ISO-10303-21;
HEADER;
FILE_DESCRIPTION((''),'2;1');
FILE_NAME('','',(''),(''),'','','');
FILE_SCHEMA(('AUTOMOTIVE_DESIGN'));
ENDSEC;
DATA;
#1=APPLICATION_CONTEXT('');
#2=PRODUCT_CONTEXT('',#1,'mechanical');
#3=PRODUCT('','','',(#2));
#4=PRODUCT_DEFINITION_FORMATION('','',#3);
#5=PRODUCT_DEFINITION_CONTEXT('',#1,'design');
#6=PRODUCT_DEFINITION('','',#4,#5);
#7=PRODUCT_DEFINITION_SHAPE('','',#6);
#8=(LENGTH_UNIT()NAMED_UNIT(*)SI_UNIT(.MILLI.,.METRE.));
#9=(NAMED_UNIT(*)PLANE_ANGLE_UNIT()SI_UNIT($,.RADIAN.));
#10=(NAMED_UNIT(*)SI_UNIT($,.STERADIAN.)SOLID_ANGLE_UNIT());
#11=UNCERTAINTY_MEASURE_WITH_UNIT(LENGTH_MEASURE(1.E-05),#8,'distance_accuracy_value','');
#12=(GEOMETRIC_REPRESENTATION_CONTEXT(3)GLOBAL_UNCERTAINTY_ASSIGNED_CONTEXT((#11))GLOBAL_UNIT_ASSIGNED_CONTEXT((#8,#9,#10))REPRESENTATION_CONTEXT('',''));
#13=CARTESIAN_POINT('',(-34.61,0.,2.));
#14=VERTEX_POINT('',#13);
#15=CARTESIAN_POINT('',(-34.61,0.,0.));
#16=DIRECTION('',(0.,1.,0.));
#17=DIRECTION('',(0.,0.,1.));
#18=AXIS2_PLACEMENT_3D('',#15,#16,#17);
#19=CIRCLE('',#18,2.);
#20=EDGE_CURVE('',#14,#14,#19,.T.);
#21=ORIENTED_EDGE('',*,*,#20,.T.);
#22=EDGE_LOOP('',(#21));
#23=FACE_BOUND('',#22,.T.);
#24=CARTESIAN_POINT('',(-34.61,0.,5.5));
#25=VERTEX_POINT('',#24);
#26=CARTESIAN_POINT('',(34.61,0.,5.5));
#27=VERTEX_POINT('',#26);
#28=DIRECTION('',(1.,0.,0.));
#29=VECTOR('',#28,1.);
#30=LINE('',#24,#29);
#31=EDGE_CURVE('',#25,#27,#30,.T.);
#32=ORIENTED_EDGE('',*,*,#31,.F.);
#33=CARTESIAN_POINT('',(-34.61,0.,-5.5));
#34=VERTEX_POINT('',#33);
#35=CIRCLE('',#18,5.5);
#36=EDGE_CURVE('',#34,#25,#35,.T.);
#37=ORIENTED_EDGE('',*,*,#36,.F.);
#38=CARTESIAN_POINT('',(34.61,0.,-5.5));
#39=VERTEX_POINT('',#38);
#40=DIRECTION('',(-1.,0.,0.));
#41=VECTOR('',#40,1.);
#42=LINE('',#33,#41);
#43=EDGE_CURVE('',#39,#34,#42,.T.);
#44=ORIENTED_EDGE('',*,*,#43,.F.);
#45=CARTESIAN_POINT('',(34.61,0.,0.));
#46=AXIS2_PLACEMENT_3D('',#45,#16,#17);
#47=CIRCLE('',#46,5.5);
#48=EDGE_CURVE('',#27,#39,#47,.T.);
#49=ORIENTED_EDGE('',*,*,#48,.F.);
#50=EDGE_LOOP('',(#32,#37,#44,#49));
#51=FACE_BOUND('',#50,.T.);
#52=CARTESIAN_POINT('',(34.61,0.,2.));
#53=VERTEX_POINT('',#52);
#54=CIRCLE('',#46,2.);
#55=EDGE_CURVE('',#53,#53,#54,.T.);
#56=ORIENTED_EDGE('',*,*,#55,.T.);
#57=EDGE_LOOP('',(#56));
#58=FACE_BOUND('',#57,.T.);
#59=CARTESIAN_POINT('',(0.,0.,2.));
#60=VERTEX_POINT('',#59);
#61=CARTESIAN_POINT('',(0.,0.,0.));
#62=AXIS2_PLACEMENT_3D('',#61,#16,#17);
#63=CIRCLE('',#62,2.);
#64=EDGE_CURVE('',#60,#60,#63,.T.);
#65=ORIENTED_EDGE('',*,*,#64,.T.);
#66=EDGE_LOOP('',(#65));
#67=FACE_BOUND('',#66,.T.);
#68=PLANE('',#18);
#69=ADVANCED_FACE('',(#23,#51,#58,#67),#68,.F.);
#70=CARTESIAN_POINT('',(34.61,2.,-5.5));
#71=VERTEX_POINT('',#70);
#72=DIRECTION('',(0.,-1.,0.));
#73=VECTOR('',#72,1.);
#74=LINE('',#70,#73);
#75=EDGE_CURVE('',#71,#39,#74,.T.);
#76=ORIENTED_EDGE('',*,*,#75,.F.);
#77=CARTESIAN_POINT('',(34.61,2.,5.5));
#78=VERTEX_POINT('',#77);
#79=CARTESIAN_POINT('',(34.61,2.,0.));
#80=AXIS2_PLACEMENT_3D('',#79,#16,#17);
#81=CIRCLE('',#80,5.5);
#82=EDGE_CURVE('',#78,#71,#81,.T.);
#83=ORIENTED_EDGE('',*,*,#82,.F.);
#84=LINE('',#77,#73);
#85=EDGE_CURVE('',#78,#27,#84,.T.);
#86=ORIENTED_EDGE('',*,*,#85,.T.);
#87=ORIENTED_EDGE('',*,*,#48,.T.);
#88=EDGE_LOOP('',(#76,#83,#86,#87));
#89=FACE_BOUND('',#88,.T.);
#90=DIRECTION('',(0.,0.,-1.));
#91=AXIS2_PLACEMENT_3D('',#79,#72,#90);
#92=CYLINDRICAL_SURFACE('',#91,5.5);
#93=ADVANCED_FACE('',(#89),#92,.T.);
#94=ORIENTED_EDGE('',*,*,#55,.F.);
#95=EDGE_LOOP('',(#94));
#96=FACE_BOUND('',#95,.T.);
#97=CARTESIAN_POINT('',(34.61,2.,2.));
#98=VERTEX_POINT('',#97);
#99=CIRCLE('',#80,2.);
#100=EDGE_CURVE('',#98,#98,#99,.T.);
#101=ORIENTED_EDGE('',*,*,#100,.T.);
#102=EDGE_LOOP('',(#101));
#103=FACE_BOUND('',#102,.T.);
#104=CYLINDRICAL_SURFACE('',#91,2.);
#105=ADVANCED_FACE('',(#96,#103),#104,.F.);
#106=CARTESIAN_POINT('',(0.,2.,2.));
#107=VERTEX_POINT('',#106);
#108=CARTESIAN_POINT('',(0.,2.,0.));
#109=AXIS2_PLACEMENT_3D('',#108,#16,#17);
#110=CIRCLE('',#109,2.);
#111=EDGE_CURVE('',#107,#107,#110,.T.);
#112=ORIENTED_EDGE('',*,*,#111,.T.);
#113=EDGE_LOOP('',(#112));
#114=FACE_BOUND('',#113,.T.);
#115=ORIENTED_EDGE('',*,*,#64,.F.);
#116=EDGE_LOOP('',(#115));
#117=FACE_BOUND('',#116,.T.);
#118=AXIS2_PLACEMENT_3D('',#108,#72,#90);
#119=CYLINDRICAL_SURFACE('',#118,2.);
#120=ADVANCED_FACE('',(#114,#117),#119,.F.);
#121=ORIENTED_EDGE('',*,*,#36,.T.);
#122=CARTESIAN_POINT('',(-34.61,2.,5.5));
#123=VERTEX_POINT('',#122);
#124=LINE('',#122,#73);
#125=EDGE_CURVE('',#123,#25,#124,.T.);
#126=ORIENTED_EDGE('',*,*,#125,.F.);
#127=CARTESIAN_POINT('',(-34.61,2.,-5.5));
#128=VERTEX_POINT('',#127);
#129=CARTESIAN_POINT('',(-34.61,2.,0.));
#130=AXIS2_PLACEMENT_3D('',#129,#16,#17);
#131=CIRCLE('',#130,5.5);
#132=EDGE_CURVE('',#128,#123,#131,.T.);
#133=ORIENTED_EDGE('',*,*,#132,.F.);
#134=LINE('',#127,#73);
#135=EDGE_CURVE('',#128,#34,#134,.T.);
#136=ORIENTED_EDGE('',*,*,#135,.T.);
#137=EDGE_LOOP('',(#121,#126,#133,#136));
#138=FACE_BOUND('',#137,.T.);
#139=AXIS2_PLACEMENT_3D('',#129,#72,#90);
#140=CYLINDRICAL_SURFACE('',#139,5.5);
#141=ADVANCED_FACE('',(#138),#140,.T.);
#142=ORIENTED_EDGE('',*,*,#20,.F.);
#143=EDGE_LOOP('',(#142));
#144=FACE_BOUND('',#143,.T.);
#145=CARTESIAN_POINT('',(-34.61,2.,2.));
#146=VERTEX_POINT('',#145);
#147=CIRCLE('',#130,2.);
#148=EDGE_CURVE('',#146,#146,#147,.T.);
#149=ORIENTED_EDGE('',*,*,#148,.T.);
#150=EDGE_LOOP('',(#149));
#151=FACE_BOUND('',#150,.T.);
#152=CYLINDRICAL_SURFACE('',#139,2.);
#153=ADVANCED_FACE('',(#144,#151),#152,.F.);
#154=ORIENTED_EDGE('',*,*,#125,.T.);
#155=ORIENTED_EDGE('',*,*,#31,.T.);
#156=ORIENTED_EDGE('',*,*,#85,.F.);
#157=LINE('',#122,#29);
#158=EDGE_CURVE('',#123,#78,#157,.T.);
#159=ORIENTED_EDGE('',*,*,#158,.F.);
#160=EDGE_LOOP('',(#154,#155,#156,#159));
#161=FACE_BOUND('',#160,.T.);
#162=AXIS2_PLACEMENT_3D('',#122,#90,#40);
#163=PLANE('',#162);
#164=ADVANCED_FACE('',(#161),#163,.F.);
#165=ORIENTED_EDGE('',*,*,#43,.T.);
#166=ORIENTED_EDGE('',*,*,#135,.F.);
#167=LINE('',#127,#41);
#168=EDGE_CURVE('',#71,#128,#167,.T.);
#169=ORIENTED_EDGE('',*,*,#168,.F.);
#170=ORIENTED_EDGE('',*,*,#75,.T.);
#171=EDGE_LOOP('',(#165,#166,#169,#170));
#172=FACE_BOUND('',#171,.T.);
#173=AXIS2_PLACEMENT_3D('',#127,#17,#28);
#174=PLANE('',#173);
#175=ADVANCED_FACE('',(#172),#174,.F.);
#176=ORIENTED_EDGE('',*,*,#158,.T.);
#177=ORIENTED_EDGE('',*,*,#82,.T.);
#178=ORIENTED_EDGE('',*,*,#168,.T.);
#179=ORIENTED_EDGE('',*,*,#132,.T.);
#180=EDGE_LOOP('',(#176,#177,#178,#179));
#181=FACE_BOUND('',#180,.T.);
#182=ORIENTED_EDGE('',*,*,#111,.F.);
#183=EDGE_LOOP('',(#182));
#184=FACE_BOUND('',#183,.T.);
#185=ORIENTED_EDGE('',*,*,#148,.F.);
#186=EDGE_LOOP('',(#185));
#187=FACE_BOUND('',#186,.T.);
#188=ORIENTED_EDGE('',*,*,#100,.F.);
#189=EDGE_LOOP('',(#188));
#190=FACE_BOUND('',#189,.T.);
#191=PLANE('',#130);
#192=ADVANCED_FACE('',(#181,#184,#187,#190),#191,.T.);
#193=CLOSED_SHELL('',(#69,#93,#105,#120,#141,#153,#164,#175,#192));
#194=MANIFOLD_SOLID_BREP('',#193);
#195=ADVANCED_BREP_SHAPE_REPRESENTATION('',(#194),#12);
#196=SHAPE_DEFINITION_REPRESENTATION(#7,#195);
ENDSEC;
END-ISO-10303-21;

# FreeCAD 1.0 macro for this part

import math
import FreeCAD as App
import Part
import Sketcher

V = App.Vector

doc = App.newDocument("Part")
body = doc.addObject("PartDesign::Body", "Body")

# Sketch on XZ plane
sketch1 = body.newObject("Sketcher::SketchObject", "Sketch")
sketch1.AttachmentSupport = (doc.getObject("XZ_Plane"), [""])
sketch1.MapMode = "FlatFace"
sketch1.addGeometry([
    Part.LineSegment(V(34.6, -5.5, 0), V(-34.6, -5.5, 0)),  # 0
    Part.ArcOfCircle(Part.Circle(V(-34.6, 0, 0), V(0, 0, 1), 5.5), math.radians(90), math.radians(270)),  # 1
    Part.LineSegment(V(-34.6, 5.5, 0), V(34.6, 5.5, 0)),  # 2
    Part.ArcOfCircle(Part.Circle(V(34.6, 0, 0), V(0, 0, 1), 5.5), math.radians(-90), math.radians(90)),  # 3
    Part.Circle(V(34.6, 0, 0), V(0, 0, 1), 2),  # 4
    Part.Circle(V(0, 0, 0), V(0, 0, 1), 2),  # 5
    Part.Circle(V(-34.6, 0, 0), V(0, 0, 1), 2),  # 6
], False)
sketch1.addConstraint([
    Sketcher.Constraint("Tangent", 0, 2, 1, 2),
    Sketcher.Constraint("Tangent", 1, 1, 2, 1),
    Sketcher.Constraint("Tangent", 2, 2, 3, 2),
    Sketcher.Constraint("Tangent", 3, 1, 0, 1),
    Sketcher.Constraint("Horizontal", 0),
    Sketcher.Constraint("Horizontal", 2),
    Sketcher.Constraint("Coincident", 5, 3, -1, 1),
    Sketcher.Constraint("Coincident", 4, 3, 3, 3),
    Sketcher.Constraint("Coincident", 6, 3, 1, 3),
    Sketcher.Constraint("Equal", 4, 5),
    Sketcher.Constraint("Equal", 5, 6),
    Sketcher.Constraint("Symmetric", 1, 3, 3, 3, -1, 1),
    Sketcher.Constraint("Diameter", 4, 4.0),
    Sketcher.Constraint("Radius", 1, 5.5),
    Sketcher.Constraint("DistanceX", 0, 2, 0, 1, 69.22),
])
pad1 = body.newObject("PartDesign::Pad", "Pad")
pad1.Profile = sketch1
pad1.Length = 2
pad1.Reversed = True

doc.recompute()
